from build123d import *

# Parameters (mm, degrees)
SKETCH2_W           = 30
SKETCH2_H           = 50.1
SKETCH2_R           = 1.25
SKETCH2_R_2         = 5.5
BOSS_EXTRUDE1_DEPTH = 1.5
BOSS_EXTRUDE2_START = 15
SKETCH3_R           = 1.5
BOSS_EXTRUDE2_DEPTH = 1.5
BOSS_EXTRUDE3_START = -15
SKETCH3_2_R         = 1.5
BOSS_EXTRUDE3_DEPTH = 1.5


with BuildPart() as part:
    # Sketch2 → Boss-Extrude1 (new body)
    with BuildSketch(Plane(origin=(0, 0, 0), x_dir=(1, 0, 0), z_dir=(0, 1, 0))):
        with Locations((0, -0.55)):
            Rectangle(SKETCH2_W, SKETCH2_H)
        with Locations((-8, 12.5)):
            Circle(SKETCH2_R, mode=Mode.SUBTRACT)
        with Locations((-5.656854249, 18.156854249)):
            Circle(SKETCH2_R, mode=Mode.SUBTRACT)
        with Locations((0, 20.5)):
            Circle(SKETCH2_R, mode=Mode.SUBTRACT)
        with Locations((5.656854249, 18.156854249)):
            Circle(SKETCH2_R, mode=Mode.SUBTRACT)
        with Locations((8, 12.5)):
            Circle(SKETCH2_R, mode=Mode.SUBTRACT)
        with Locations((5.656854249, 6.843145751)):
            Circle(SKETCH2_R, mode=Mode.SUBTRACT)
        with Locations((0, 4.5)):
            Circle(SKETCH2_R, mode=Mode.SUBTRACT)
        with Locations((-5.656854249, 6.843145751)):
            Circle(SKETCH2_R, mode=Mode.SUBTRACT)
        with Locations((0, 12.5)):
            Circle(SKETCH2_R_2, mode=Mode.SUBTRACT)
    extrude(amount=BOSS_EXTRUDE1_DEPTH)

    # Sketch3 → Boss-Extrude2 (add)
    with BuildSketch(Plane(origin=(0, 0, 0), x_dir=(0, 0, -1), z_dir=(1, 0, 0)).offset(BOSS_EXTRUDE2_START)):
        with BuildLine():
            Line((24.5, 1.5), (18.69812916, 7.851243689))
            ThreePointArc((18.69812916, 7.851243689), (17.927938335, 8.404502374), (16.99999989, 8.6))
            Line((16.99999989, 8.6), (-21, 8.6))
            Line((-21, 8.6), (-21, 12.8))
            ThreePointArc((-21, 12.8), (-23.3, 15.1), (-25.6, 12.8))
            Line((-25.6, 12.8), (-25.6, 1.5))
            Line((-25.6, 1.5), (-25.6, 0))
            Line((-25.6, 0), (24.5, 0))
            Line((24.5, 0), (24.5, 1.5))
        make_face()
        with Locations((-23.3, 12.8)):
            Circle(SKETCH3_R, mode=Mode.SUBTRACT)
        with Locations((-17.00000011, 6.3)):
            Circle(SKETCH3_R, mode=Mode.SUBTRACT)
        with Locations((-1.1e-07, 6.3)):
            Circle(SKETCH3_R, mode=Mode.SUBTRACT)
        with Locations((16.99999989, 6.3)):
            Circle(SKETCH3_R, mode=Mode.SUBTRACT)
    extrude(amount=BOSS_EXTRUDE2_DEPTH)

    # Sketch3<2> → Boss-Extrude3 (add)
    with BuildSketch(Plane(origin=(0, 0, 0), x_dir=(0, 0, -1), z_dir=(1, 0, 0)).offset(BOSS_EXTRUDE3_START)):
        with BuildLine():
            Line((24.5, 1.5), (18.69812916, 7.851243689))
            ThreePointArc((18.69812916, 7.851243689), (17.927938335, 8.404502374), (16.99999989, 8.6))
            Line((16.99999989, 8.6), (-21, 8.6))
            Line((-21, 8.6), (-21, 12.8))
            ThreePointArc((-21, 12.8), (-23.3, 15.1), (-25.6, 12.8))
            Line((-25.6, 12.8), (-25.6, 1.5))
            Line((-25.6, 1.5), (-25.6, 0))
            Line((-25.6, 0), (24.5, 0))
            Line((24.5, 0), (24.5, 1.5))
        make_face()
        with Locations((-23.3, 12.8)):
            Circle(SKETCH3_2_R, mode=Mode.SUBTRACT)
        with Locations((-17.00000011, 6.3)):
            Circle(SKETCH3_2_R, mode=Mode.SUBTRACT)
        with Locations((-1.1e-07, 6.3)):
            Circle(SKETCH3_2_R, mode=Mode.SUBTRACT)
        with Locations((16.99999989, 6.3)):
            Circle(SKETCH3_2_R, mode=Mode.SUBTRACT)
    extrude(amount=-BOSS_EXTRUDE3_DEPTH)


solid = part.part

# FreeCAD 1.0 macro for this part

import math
import FreeCAD as App
import Part
import Sketcher

V = App.Vector
Q = App.Units.Quantity


def add_polygon(sketch, points):
    """Adds a closed chain of lines whose ends are joined by coincident constraints."""
    first, n = sketch.GeometryCount, len(points)
    for a, b in zip(points, points[1:] + points[:1]):
        sketch.addGeometry(Part.LineSegment(App.Vector(*a, 0), App.Vector(*b, 0)), False)
    for i in range(n):
        sketch.addConstraint(Sketcher.Constraint("Coincident", first + i, 2, first + (i + 1) % n, 1))

doc = App.newDocument("Part")
params = doc.addObject("Spreadsheet::Sheet", "Params")
for row, (alias, value) in enumerate([
    ("sketch1_diameter", "11 mm"),
    ("sketch1_diameter2", "2.5 mm"),
    ("sketch1_width", "30 mm"),
    ("sketch1_height", "50.1 mm"),
    ("pad1_length", "1.5 mm"),
    ("sketch2_diameter", "3 mm"),
    ("sketch2_radius", "2.3 mm"),
    ("sketch2_height", "38 mm"),
    ("sketch2_width", "4.2 mm"),
    ("sketch2_width2", "12.8 mm"),
    ("pad2_length", "1.5 mm"),
    ("sketch3_diameter", "3 mm"),
    ("sketch3_radius", "2.3 mm"),
    ("sketch3_height", "38 mm"),
    ("sketch3_width", "4.2 mm"),
    ("sketch3_width2", "12.8 mm"),
    ("pad3_length", "1.5 mm"),
], start=1):
    params.set(f"A{row}", alias)
    params.set(f"B{row}", "=" + value)
    params.setAlias(f"B{row}", alias)

body = doc.addObject("PartDesign::Body", "Body")

# Sketch on XZ plane
sketch1 = body.newObject("Sketcher::SketchObject", "Sketch")
sketch1.AttachmentSupport = (doc.getObject("XZ_Plane"), [""])
sketch1.MapMode = "FlatFace"
add_polygon(sketch1, [(-15, -24.5), (-15, 25.6), (15, 25.6), (15, -24.5)])  # lines 0-3
sketch1.addGeometry(Part.Circle(V(-5.7, -6.8, 0), V(0, 0, 1), 1.2), False)  # 4
sketch1.addGeometry(Part.Circle(V(0, -4.5, 0), V(0, 0, 1), 1.2), False)  # 5
sketch1.addGeometry(Part.Circle(V(5.7, -6.8, 0), V(0, 0, 1), 1.2), False)  # 6
sketch1.addGeometry(Part.Circle(V(-8, -12.5, 0), V(0, 0, 1), 1.2), False)  # 7
sketch1.addGeometry(Part.Circle(V(-5.7, -18.2, 0), V(0, 0, 1), 1.2), False)  # 8
sketch1.addGeometry(Part.Circle(V(0, -12.5, 0), V(0, 0, 1), 5.5), False)  # 9
sketch1.addGeometry(Part.Circle(V(8, -12.5, 0), V(0, 0, 1), 1.2), False)  # 10
sketch1.addGeometry(Part.Circle(V(0, -20.5, 0), V(0, 0, 1), 1.2), False)  # 11
sketch1.addGeometry(Part.Circle(V(5.7, -18.2, 0), V(0, 0, 1), 1.2), False)  # 12
sketch1.addConstraint(Sketcher.Constraint("Vertical", 0))
sketch1.addConstraint(Sketcher.Constraint("Horizontal", 1))
sketch1.addConstraint(Sketcher.Constraint("Vertical", 2))
sketch1.addConstraint(Sketcher.Constraint("Horizontal", 3))
sketch1.addConstraint(Sketcher.Constraint("Equal", 4, 5))
sketch1.addConstraint(Sketcher.Constraint("Equal", 5, 6))
sketch1.addConstraint(Sketcher.Constraint("Equal", 6, 7))
sketch1.addConstraint(Sketcher.Constraint("Equal", 7, 8))
sketch1.addConstraint(Sketcher.Constraint("Equal", 8, 10))
sketch1.addConstraint(Sketcher.Constraint("Equal", 10, 11))
sketch1.addConstraint(Sketcher.Constraint("Equal", 11, 12))
sketch1.addConstraint(Sketcher.Constraint("Symmetric", 4, 3, 6, 3, -2))
sketch1.addConstraint(Sketcher.Constraint("Symmetric", 7, 3, 10, 3, -2))
sketch1.addConstraint(Sketcher.Constraint("Symmetric", 8, 3, 12, 3, -2))
sketch1.addConstraint(Sketcher.Constraint("PointOnObject", 5, 3, -2))
sketch1.addConstraint(Sketcher.Constraint("PointOnObject", 9, 3, -2))
sketch1.addConstraint(Sketcher.Constraint("PointOnObject", 11, 3, -2))
sketch1.addConstraint(Sketcher.Constraint("Horizontal", 7, 3, 9, 3))
sketch1.addConstraint(Sketcher.Constraint("Vertical", 4, 3, 8, 3))
sketch1.addConstraint(Sketcher.Constraint("Diameter", 9, Q("11 mm")))
sketch1.addConstraint(Sketcher.Constraint("Diameter", 4, Q("2.5 mm")))
sketch1.addConstraint(Sketcher.Constraint("DistanceX", 1, 1, 1, 2, Q("30 mm")))
sketch1.addConstraint(Sketcher.Constraint("DistanceY", 0, 1, 0, 2, Q("50.1 mm")))
sketch1.addConstraint(Sketcher.Constraint("DistanceX", 7, 3, -1, 1, Q("8 mm")))
sketch1.addConstraint(Sketcher.Constraint("DistanceX", 0, 2, -1, 1, Q("15 mm")))
sketch1.addConstraint(Sketcher.Constraint("DistanceY", 7, 3, 5, 3, Q("8 mm")))
sketch1.addConstraint(Sketcher.Constraint("DistanceY", 11, 3, 9, 3, Q("8 mm")))
sketch1.addConstraint(Sketcher.Constraint("DistanceY", 2, 2, 10, 3, Q("12 mm")))
sketch1.addConstraint(Sketcher.Constraint("DistanceY", 5, 3, -1, 1, Q("4.5 mm")))
sketch1.addConstraint(Sketcher.Constraint("DistanceX", 4, 3, 6, 3, Q("11.313708 mm")))
sketch1.addConstraint(Sketcher.Constraint("DistanceY", 8, 3, 4, 3, Q("11.313708 mm")))
sketch1.addConstraint(Sketcher.Constraint("DistanceY", 4, 3, -1, 1, Q("6.843146 mm")))
sketch1.setExpression("Constraints[23]", "Params.sketch1_diameter")
sketch1.setExpression("Constraints[24]", "Params.sketch1_diameter2")
sketch1.setExpression("Constraints[25]", "Params.sketch1_width")
sketch1.setExpression("Constraints[26]", "Params.sketch1_height")
pad1 = body.newObject("PartDesign::Pad", "Pad")
pad1.Profile = sketch1
pad1.setExpression("Length", "Params.pad1_length")
pad1.Reversed = True

# Sketch on YZ plane
sketch2 = body.newObject("Sketcher::SketchObject", "Sketch001")
sketch2.AttachmentSupport = (doc.getObject("YZ_Plane"), [""])
sketch2.MapMode = "FlatFace"
sketch2.AttachmentOffset = App.Placement(V(0, 0, 15), App.Rotation())
sketch2.addGeometry(Part.LineSegment(V(1.5, -24.5, 0), V(7.9, -18.7, 0)), False)
sketch2.addGeometry(Part.ArcOfCircle(Part.Circle(V(6.3, -17, 0), V(0, 0, 1), 2.3), math.radians(-48), math.radians(0)), False)
sketch2.addGeometry(Part.LineSegment(V(8.6, -17, 0), V(8.6, 21, 0)), False)
sketch2.addGeometry(Part.LineSegment(V(8.6, 21, 0), V(12.8, 21, 0)), False)
sketch2.addGeometry(Part.ArcOfCircle(Part.Circle(V(12.8, 23.3, 0), V(0, 0, 1), 2.3), math.radians(-90), math.radians(90)), False)
sketch2.addGeometry(Part.LineSegment(V(12.8, 25.6, 0), V(0, 25.6, 0)), False)
sketch2.addGeometry(Part.LineSegment(V(0, 25.6, 0), V(0, -24.5, 0)), False)
sketch2.addGeometry(Part.LineSegment(V(0, -24.5, 0), V(1.5, -24.5, 0)), False)
sketch2.addGeometry(Part.Circle(V(6.3, 17, 0), V(0, 0, 1), 1.5), False)
sketch2.addGeometry(Part.Circle(V(6.3, 0, 0), V(0, 0, 1), 1.5), False)
sketch2.addGeometry(Part.Circle(V(6.3, -17, 0), V(0, 0, 1), 1.5), False)
sketch2.addGeometry(Part.Circle(V(12.8, 23.3, 0), V(0, 0, 1), 1.5), False)
sketch2.addConstraint(Sketcher.Constraint("Tangent", 0, 2, 1, 1))
sketch2.addConstraint(Sketcher.Constraint("Tangent", 1, 2, 2, 1))
sketch2.addConstraint(Sketcher.Constraint("Coincident", 2, 2, 3, 1))
sketch2.addConstraint(Sketcher.Constraint("Tangent", 3, 2, 4, 1))
sketch2.addConstraint(Sketcher.Constraint("Tangent", 4, 2, 5, 1))
sketch2.addConstraint(Sketcher.Constraint("Coincident", 5, 2, 6, 1))
sketch2.addConstraint(Sketcher.Constraint("Coincident", 6, 2, 7, 1))
sketch2.addConstraint(Sketcher.Constraint("Coincident", 7, 2, 0, 1))
sketch2.addConstraint(Sketcher.Constraint("Vertical", 2))
sketch2.addConstraint(Sketcher.Constraint("Horizontal", 3))
sketch2.addConstraint(Sketcher.Constraint("Horizontal", 5))
sketch2.addConstraint(Sketcher.Constraint("Vertical", 6))
sketch2.addConstraint(Sketcher.Constraint("Horizontal", 7))
sketch2.addConstraint(Sketcher.Constraint("Coincident", 10, 3, 1, 3))
sketch2.addConstraint(Sketcher.Constraint("Coincident", 11, 3, 4, 3))
sketch2.addConstraint(Sketcher.Constraint("Equal", 1, 4))
sketch2.addConstraint(Sketcher.Constraint("Equal", 8, 9))
sketch2.addConstraint(Sketcher.Constraint("Equal", 9, 10))
sketch2.addConstraint(Sketcher.Constraint("Equal", 10, 11))
sketch2.addConstraint(Sketcher.Constraint("Symmetric", 1, 3, 8, 3, -1))
sketch2.addConstraint(Sketcher.Constraint("PointOnObject", 9, 3, -1))
sketch2.addConstraint(Sketcher.Constraint("PointOnObject", 5, 2, -2))
sketch2.addConstraint(Sketcher.Constraint("Vertical", 8, 3, 9, 3))
sketch2.addConstraint(Sketcher.Constraint("Diameter", 8, Q("3 mm")))
sketch2.addConstraint(Sketcher.Constraint("Radius", 1, Q("2.3 mm")))
sketch2.addConstraint(Sketcher.Constraint("DistanceY", 2, 1, 2, 2, Q("38 mm")))
sketch2.addConstraint(Sketcher.Constraint("DistanceX", 3, 1, 3, 2, Q("4.2 mm")))
sketch2.addConstraint(Sketcher.Constraint("DistanceX", 5, 2, 5, 1, Q("12.8 mm")))
sketch2.addConstraint(Sketcher.Constraint("DistanceX", 7, 1, 7, 2, Q("1.5 mm")))
sketch2.addConstraint(Sketcher.Constraint("DistanceY", 6, 2, 6, 1, Q("50.1 mm")))
sketch2.addConstraint(Sketcher.Constraint("DistanceY", 1, 3, -1, 1, Q("17 mm")))
sketch2.setExpression("Constraints[23]", "Params.sketch2_diameter")
sketch2.setExpression("Constraints[24]", "Params.sketch2_radius")
sketch2.setExpression("Constraints[25]", "Params.sketch2_height")
sketch2.setExpression("Constraints[26]", "Params.sketch2_width")
sketch2.setExpression("Constraints[27]", "Params.sketch2_width2")
pad2 = body.newObject("PartDesign::Pad", "Pad001")
pad2.Profile = sketch2
pad2.setExpression("Length", "Params.pad2_length")

# Sketch on YZ plane
sketch3 = body.newObject("Sketcher::SketchObject", "Sketch002")
sketch3.AttachmentSupport = (doc.getObject("YZ_Plane"), [""])
sketch3.MapMode = "FlatFace"
sketch3.AttachmentOffset = App.Placement(V(0, 0, -15), App.Rotation())
sketch3.addGeometry(Part.LineSegment(V(1.5, -24.5, 0), V(7.9, -18.7, 0)), False)
sketch3.addGeometry(Part.ArcOfCircle(Part.Circle(V(6.3, -17, 0), V(0, 0, 1), 2.3), math.radians(-48), math.radians(0)), False)
sketch3.addGeometry(Part.LineSegment(V(8.6, -17, 0), V(8.6, 21, 0)), False)
sketch3.addGeometry(Part.LineSegment(V(8.6, 21, 0), V(12.8, 21, 0)), False)
sketch3.addGeometry(Part.ArcOfCircle(Part.Circle(V(12.8, 23.3, 0), V(0, 0, 1), 2.3), math.radians(-90), math.radians(90)), False)
sketch3.addGeometry(Part.LineSegment(V(12.8, 25.6, 0), V(0, 25.6, 0)), False)
sketch3.addGeometry(Part.LineSegment(V(0, 25.6, 0), V(0, -24.5, 0)), False)
sketch3.addGeometry(Part.LineSegment(V(0, -24.5, 0), V(1.5, -24.5, 0)), False)
sketch3.addGeometry(Part.Circle(V(6.3, 17, 0), V(0, 0, 1), 1.5), False)
sketch3.addGeometry(Part.Circle(V(6.3, 0, 0), V(0, 0, 1), 1.5), False)
sketch3.addGeometry(Part.Circle(V(6.3, -17, 0), V(0, 0, 1), 1.5), False)
sketch3.addGeometry(Part.Circle(V(12.8, 23.3, 0), V(0, 0, 1), 1.5), False)
sketch3.addConstraint(Sketcher.Constraint("Tangent", 0, 2, 1, 1))
sketch3.addConstraint(Sketcher.Constraint("Tangent", 1, 2, 2, 1))
sketch3.addConstraint(Sketcher.Constraint("Coincident", 2, 2, 3, 1))
sketch3.addConstraint(Sketcher.Constraint("Tangent", 3, 2, 4, 1))
sketch3.addConstraint(Sketcher.Constraint("Tangent", 4, 2, 5, 1))
sketch3.addConstraint(Sketcher.Constraint("Coincident", 5, 2, 6, 1))
sketch3.addConstraint(Sketcher.Constraint("Coincident", 6, 2, 7, 1))
sketch3.addConstraint(Sketcher.Constraint("Coincident", 7, 2, 0, 1))
sketch3.addConstraint(Sketcher.Constraint("Vertical", 2))
sketch3.addConstraint(Sketcher.Constraint("Horizontal", 3))
sketch3.addConstraint(Sketcher.Constraint("Horizontal", 5))
sketch3.addConstraint(Sketcher.Constraint("Vertical", 6))
sketch3.addConstraint(Sketcher.Constraint("Horizontal", 7))
sketch3.addConstraint(Sketcher.Constraint("Coincident", 10, 3, 1, 3))
sketch3.addConstraint(Sketcher.Constraint("Coincident", 11, 3, 4, 3))
sketch3.addConstraint(Sketcher.Constraint("Equal", 1, 4))
sketch3.addConstraint(Sketcher.Constraint("Equal", 8, 9))
sketch3.addConstraint(Sketcher.Constraint("Equal", 9, 10))
sketch3.addConstraint(Sketcher.Constraint("Equal", 10, 11))
sketch3.addConstraint(Sketcher.Constraint("Symmetric", 1, 3, 8, 3, -1))
sketch3.addConstraint(Sketcher.Constraint("PointOnObject", 9, 3, -1))
sketch3.addConstraint(Sketcher.Constraint("PointOnObject", 5, 2, -2))
sketch3.addConstraint(Sketcher.Constraint("Vertical", 8, 3, 9, 3))
sketch3.addConstraint(Sketcher.Constraint("Diameter", 8, Q("3 mm")))
sketch3.addConstraint(Sketcher.Constraint("Radius", 1, Q("2.3 mm")))
sketch3.addConstraint(Sketcher.Constraint("DistanceY", 2, 1, 2, 2, Q("38 mm")))
sketch3.addConstraint(Sketcher.Constraint("DistanceX", 3, 1, 3, 2, Q("4.2 mm")))
sketch3.addConstraint(Sketcher.Constraint("DistanceX", 5, 2, 5, 1, Q("12.8 mm")))
sketch3.addConstraint(Sketcher.Constraint("DistanceX", 7, 1, 7, 2, Q("1.5 mm")))
sketch3.addConstraint(Sketcher.Constraint("DistanceY", 6, 2, 6, 1, Q("50.1 mm")))
sketch3.addConstraint(Sketcher.Constraint("DistanceY", 1, 3, -1, 1, Q("17 mm")))
sketch3.setExpression("Constraints[23]", "Params.sketch3_diameter")
sketch3.setExpression("Constraints[24]", "Params.sketch3_radius")
sketch3.setExpression("Constraints[25]", "Params.sketch3_height")
sketch3.setExpression("Constraints[26]", "Params.sketch3_width")
sketch3.setExpression("Constraints[27]", "Params.sketch3_width2")
pad3 = body.newObject("PartDesign::Pad", "Pad002")
pad3.Profile = sketch3
pad3.setExpression("Length", "Params.pad3_length")
pad3.Reversed = True

doc.recompute()
